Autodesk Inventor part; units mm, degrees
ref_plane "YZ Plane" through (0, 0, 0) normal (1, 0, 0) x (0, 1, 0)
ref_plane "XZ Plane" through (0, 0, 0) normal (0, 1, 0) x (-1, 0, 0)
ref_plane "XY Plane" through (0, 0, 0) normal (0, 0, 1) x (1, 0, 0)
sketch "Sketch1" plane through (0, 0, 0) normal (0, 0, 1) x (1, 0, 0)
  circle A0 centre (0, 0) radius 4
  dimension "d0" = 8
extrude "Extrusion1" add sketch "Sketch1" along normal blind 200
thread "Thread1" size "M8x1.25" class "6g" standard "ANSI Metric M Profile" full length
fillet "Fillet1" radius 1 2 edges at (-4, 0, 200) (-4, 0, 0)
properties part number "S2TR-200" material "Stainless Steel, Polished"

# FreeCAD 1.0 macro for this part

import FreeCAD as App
import Part
import Sketcher


def edges_at(feature, points):
    """Names of the edges that pass closest to the given points."""
    edges = feature.Shape.Edges
    near = lambda p: min(range(len(edges)), key=lambda i: edges[i].distToShape(Part.Vertex(*p))[0])
    return sorted({f"Edge{near(p) + 1}" for p in points})

doc = App.newDocument("Part")
body = doc.addObject("PartDesign::Body", "Body")

sketch1 = body.newObject("Sketcher::SketchObject", "Sketch")
sketch1.AttachmentSupport = (doc.getObject("XY_Plane"), [""])
sketch1.MapMode = "FlatFace"
sketch1.addGeometry(Part.Circle(App.Vector(0, 0, 0), App.Vector(0, 0, 1), 4), False)
sketch1.addConstraint(Sketcher.Constraint("Coincident", 0, 3, -1, 1))
sketch1.addConstraint(Sketcher.Constraint("Diameter", 0, 8.0))
pad1 = body.newObject("PartDesign::Pad", "Pad")
pad1.Profile = sketch1
pad1.Length = 200
doc.recompute()

fillet = body.newObject("PartDesign::Fillet", "Fillet")
fillet.Base = (pad1, edges_at(pad1, [(-4, 0, 200), (-4, 0, 0)]))
fillet.Radius = 1

doc.recompute()
